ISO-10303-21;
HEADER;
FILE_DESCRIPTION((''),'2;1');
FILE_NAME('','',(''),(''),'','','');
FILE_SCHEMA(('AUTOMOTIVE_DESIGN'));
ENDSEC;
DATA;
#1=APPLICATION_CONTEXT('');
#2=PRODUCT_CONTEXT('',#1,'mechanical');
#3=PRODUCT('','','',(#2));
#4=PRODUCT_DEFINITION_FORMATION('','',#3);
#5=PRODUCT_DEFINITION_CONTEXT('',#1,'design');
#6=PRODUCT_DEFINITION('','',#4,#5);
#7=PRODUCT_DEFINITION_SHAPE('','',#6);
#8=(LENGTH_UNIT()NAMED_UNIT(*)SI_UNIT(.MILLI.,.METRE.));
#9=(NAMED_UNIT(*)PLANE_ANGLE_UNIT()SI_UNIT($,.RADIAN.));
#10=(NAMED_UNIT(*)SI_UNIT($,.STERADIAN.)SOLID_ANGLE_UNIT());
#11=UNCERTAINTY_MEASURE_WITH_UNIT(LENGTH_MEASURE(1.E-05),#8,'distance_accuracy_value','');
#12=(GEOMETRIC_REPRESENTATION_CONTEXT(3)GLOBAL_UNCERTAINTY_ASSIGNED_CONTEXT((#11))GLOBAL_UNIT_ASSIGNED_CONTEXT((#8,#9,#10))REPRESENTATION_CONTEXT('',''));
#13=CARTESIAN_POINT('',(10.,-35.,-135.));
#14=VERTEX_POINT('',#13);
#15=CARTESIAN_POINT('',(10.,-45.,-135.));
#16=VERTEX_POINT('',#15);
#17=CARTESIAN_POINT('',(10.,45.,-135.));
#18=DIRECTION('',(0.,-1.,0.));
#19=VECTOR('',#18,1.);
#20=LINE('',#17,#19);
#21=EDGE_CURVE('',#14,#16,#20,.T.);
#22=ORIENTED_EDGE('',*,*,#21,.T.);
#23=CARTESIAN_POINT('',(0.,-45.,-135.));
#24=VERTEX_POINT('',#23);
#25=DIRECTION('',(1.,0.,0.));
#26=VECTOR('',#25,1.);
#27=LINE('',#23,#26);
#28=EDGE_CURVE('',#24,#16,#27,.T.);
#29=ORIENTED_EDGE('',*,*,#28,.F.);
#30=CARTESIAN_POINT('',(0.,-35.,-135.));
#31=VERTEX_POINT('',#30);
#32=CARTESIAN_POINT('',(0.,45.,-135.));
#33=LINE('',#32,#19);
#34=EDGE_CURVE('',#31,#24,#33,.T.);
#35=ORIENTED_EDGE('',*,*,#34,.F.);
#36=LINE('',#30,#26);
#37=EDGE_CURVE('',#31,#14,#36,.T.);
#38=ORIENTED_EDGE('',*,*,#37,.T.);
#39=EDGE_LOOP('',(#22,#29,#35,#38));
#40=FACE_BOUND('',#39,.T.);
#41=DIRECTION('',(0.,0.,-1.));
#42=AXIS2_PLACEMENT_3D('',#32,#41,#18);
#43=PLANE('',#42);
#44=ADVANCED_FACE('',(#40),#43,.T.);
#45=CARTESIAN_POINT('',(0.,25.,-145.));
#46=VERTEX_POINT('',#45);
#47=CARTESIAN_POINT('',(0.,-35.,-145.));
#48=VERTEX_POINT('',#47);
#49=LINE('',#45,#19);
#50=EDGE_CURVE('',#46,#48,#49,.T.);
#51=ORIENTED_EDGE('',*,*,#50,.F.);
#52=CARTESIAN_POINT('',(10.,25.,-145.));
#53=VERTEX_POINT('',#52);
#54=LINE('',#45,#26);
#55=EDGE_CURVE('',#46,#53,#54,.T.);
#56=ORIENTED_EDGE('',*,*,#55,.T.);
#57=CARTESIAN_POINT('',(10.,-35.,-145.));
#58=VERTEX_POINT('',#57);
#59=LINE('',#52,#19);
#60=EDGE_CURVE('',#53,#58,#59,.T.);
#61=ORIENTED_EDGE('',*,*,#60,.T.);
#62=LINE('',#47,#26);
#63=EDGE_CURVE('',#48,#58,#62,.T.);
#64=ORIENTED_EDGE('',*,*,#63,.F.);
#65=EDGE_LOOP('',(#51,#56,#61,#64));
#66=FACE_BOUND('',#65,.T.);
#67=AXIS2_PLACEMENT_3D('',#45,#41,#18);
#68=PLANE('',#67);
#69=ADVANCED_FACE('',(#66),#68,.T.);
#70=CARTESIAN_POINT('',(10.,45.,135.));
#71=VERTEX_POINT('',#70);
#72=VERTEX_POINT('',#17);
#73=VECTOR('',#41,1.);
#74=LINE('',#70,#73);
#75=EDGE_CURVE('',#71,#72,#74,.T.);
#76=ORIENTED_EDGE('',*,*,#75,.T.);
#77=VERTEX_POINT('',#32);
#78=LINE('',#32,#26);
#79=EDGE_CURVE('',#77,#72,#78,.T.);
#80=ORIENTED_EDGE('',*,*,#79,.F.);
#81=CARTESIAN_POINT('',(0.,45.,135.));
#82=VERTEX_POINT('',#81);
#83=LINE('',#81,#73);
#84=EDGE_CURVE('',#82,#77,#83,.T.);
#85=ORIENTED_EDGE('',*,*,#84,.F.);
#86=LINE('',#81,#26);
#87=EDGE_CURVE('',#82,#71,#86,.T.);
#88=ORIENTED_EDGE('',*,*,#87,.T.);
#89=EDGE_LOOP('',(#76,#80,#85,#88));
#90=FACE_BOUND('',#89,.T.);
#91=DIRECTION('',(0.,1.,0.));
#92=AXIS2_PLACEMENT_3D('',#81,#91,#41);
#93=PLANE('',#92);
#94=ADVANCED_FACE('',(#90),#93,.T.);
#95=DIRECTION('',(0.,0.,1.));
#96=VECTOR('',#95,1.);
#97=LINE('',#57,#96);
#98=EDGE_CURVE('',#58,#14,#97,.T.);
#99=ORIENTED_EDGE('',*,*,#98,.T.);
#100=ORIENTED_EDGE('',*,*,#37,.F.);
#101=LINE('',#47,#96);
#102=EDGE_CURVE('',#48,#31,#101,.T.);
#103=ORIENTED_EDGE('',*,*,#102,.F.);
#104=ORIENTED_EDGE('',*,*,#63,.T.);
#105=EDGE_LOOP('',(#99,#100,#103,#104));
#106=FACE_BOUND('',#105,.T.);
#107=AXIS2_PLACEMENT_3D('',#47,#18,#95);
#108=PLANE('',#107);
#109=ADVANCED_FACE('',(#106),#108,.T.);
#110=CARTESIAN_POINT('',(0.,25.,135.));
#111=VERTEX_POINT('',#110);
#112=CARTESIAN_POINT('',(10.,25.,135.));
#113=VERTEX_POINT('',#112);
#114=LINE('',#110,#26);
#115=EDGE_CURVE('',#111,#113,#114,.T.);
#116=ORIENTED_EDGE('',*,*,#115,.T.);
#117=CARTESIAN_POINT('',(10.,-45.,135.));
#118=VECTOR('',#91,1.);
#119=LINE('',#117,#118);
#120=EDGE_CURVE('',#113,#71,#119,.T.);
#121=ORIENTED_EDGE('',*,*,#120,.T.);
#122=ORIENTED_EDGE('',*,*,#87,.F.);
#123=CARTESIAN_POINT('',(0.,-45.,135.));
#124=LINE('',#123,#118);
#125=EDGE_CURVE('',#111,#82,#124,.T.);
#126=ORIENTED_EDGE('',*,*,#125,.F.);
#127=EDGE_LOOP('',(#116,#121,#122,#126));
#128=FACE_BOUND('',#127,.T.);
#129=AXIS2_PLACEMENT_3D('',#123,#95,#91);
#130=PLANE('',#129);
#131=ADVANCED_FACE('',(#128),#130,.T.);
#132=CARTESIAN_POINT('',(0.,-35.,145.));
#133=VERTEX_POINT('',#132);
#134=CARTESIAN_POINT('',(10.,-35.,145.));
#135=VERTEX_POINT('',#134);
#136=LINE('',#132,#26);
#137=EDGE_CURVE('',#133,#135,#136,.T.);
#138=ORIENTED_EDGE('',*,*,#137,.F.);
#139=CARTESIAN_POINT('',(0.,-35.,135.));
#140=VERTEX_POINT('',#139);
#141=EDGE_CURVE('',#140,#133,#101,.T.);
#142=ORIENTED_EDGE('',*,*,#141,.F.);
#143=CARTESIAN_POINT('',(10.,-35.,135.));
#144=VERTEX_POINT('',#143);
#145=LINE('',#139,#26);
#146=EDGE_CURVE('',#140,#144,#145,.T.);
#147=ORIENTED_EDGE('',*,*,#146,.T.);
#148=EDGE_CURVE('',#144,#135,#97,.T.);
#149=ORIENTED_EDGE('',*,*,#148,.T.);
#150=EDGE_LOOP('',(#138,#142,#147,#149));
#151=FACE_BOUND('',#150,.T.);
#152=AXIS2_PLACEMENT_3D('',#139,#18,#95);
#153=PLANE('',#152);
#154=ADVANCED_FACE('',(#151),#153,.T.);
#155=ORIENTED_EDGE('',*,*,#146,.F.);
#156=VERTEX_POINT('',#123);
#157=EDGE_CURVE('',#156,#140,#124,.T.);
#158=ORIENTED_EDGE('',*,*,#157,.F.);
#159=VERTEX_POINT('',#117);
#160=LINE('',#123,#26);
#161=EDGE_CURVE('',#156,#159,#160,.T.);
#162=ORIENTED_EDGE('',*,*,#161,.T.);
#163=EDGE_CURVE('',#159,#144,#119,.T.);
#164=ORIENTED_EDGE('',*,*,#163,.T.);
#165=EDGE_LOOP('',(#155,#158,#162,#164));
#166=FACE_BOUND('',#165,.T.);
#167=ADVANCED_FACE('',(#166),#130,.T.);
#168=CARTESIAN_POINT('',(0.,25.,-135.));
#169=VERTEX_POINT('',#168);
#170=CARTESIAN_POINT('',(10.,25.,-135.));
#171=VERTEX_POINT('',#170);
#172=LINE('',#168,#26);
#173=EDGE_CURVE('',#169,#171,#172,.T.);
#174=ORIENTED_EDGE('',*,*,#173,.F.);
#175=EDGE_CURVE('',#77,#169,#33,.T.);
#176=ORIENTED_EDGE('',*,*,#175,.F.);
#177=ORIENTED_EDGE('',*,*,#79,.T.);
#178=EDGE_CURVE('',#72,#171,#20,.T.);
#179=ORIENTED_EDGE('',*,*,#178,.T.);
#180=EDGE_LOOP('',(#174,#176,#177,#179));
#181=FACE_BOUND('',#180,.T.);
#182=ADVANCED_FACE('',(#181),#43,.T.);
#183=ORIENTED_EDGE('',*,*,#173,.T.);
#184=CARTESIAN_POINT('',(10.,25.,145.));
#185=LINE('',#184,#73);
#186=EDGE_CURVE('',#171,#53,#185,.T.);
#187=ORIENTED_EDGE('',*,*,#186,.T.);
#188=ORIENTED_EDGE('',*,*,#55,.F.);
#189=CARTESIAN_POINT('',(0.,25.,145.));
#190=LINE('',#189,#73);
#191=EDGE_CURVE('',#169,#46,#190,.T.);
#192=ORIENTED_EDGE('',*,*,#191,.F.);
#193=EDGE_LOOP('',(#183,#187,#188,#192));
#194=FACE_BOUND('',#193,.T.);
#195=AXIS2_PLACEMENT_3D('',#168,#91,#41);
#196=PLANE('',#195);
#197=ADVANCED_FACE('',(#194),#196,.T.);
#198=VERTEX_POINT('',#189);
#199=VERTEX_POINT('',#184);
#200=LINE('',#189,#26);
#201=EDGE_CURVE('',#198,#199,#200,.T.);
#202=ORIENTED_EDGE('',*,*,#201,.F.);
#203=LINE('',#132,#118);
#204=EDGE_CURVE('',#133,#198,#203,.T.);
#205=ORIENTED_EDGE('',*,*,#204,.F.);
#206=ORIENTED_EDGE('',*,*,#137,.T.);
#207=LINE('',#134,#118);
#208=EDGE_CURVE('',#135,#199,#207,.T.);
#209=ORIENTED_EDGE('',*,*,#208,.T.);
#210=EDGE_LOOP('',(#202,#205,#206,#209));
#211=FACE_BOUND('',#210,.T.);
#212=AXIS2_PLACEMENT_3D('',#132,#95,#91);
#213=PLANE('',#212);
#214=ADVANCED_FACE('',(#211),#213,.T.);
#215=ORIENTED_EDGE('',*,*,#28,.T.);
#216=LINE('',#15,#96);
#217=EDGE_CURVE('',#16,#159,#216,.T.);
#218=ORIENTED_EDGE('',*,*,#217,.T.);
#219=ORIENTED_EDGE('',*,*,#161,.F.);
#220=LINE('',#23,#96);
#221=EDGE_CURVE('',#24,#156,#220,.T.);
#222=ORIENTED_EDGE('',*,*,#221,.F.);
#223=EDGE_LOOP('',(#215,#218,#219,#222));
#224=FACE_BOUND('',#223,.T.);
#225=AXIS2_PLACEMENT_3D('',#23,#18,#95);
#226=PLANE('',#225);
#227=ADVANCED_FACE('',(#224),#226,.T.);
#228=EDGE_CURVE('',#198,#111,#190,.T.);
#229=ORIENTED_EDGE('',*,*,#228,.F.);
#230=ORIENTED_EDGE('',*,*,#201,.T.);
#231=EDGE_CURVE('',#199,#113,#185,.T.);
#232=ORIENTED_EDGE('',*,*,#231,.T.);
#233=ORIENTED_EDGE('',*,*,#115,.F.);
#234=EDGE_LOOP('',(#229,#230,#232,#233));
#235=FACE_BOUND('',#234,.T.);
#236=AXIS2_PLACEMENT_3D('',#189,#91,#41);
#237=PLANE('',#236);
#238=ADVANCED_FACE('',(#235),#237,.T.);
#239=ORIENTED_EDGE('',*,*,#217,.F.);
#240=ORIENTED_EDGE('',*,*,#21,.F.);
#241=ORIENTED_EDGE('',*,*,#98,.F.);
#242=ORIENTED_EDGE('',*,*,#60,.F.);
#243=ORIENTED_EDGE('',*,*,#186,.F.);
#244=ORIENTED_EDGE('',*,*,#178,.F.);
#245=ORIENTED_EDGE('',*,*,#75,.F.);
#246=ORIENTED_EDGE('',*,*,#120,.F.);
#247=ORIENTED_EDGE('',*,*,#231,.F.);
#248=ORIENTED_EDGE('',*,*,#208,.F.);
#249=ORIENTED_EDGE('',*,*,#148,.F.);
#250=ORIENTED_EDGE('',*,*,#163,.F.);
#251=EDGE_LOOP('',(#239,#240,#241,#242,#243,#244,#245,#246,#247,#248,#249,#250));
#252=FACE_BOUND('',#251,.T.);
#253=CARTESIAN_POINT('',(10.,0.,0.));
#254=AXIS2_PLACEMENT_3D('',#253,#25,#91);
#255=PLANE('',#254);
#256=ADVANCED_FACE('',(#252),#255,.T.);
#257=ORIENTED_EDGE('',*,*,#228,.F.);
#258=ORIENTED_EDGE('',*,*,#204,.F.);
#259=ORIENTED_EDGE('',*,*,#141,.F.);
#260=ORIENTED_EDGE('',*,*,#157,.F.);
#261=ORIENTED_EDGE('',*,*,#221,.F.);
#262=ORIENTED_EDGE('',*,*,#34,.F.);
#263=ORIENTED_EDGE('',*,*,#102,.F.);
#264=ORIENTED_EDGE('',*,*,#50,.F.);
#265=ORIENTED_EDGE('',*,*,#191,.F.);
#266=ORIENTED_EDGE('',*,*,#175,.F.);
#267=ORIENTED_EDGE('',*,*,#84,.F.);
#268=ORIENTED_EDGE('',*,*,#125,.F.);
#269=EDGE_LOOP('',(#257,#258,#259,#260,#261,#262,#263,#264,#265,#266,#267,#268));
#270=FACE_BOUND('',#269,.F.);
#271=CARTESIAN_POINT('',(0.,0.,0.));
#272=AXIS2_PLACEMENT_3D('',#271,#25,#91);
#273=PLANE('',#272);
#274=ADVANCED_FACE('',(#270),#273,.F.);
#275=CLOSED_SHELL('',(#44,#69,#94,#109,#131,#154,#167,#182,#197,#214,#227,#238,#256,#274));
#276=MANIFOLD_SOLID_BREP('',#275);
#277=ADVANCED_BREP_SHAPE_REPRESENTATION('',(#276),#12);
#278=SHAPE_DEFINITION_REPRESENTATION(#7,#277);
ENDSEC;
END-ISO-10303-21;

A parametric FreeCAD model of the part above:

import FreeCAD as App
import Part
import Sketcher

V = App.Vector
Q = App.Units.Quantity


def add_polygon(sketch, points):
    """Adds a closed chain of lines whose ends are joined by coincident constraints."""
    first, n = sketch.GeometryCount, len(points)
    for a, b in zip(points, points[1:] + points[:1]):
        sketch.addGeometry(Part.LineSegment(App.Vector(*a, 0), App.Vector(*b, 0)), False)
    for i in range(n):
        sketch.addConstraint(Sketcher.Constraint("Coincident", first + i, 2, first + (i + 1) % n, 1))

doc = App.newDocument("Part")
body = doc.addObject("PartDesign::Body", "Body")

# Sketch on YZ plane
sketch1 = body.newObject("Sketcher::SketchObject", "Sketch")
sketch1.AttachmentSupport = (doc.getObject("YZ_Plane"), [""])
sketch1.MapMode = "FlatFace"
add_polygon(sketch1, [(45, 135), (-45, 135), (-45, -135), (45, -135)])  # lines 0-3
sketch1.addConstraint(Sketcher.Constraint("Horizontal", 0))
sketch1.addConstraint(Sketcher.Constraint("Vertical", 1))
sketch1.addConstraint(Sketcher.Constraint("Horizontal", 2))
sketch1.addConstraint(Sketcher.Constraint("Vertical", 3))
sketch1.addConstraint(Sketcher.Constraint("Symmetric", 0, 2, 2, 2, -1, 1))
sketch1.addConstraint(Sketcher.Constraint("DistanceX", 0, 2, 0, 1, Q("90 mm")))
sketch1.addConstraint(Sketcher.Constraint("DistanceY", 1, 2, 1, 1, Q("270 mm")))
pad1 = body.newObject("PartDesign::Pad", "Pad")
pad1.Profile = sketch1
pad1.Length = 10

# Sketch on YZ plane
sketch2 = body.newObject("Sketcher::SketchObject", "Sketch001")
sketch2.AttachmentSupport = (doc.getObject("YZ_Plane"), [""])
sketch2.MapMode = "FlatFace"
add_polygon(sketch2, [(-35, -145), (-35, -135), (25, -135), (25, -145)])  # lines 0-3
add_polygon(sketch2, [(25, 135), (-35, 135), (-35, 145), (25, 145)])  # lines 4-7
sketch2.addConstraint(Sketcher.Constraint("Vertical", 0))
sketch2.addConstraint(Sketcher.Constraint("Horizontal", 1))
sketch2.addConstraint(Sketcher.Constraint("Vertical", 2))
sketch2.addConstraint(Sketcher.Constraint("Horizontal", 3))
sketch2.addConstraint(Sketcher.Constraint("Horizontal", 4))
sketch2.addConstraint(Sketcher.Constraint("Vertical", 5))
sketch2.addConstraint(Sketcher.Constraint("Horizontal", 6))
sketch2.addConstraint(Sketcher.Constraint("Vertical", 7))
sketch2.addConstraint(Sketcher.Constraint("Symmetric", 0, 2, 4, 2, -1))
sketch2.addConstraint(Sketcher.Constraint("Symmetric", 2, 2, 6, 2, -1))
sketch2.addConstraint(Sketcher.Constraint("DistanceX", 1, 1, 1, 2, Q("60 mm")))
sketch2.addConstraint(Sketcher.Constraint("DistanceY", 0, 2, 4, 2, Q("270 mm")))
sketch2.addConstraint(Sketcher.Constraint("DistanceY", 3, 2, 5, 2, Q("290 mm")))
sketch2.addConstraint(Sketcher.Constraint("DistanceX", 0, 2, -1, 1, Q("35 mm")))
pad2 = body.newObject("PartDesign::Pad", "Pad001")
pad2.Profile = sketch2
pad2.Length = 10

doc.recompute()
